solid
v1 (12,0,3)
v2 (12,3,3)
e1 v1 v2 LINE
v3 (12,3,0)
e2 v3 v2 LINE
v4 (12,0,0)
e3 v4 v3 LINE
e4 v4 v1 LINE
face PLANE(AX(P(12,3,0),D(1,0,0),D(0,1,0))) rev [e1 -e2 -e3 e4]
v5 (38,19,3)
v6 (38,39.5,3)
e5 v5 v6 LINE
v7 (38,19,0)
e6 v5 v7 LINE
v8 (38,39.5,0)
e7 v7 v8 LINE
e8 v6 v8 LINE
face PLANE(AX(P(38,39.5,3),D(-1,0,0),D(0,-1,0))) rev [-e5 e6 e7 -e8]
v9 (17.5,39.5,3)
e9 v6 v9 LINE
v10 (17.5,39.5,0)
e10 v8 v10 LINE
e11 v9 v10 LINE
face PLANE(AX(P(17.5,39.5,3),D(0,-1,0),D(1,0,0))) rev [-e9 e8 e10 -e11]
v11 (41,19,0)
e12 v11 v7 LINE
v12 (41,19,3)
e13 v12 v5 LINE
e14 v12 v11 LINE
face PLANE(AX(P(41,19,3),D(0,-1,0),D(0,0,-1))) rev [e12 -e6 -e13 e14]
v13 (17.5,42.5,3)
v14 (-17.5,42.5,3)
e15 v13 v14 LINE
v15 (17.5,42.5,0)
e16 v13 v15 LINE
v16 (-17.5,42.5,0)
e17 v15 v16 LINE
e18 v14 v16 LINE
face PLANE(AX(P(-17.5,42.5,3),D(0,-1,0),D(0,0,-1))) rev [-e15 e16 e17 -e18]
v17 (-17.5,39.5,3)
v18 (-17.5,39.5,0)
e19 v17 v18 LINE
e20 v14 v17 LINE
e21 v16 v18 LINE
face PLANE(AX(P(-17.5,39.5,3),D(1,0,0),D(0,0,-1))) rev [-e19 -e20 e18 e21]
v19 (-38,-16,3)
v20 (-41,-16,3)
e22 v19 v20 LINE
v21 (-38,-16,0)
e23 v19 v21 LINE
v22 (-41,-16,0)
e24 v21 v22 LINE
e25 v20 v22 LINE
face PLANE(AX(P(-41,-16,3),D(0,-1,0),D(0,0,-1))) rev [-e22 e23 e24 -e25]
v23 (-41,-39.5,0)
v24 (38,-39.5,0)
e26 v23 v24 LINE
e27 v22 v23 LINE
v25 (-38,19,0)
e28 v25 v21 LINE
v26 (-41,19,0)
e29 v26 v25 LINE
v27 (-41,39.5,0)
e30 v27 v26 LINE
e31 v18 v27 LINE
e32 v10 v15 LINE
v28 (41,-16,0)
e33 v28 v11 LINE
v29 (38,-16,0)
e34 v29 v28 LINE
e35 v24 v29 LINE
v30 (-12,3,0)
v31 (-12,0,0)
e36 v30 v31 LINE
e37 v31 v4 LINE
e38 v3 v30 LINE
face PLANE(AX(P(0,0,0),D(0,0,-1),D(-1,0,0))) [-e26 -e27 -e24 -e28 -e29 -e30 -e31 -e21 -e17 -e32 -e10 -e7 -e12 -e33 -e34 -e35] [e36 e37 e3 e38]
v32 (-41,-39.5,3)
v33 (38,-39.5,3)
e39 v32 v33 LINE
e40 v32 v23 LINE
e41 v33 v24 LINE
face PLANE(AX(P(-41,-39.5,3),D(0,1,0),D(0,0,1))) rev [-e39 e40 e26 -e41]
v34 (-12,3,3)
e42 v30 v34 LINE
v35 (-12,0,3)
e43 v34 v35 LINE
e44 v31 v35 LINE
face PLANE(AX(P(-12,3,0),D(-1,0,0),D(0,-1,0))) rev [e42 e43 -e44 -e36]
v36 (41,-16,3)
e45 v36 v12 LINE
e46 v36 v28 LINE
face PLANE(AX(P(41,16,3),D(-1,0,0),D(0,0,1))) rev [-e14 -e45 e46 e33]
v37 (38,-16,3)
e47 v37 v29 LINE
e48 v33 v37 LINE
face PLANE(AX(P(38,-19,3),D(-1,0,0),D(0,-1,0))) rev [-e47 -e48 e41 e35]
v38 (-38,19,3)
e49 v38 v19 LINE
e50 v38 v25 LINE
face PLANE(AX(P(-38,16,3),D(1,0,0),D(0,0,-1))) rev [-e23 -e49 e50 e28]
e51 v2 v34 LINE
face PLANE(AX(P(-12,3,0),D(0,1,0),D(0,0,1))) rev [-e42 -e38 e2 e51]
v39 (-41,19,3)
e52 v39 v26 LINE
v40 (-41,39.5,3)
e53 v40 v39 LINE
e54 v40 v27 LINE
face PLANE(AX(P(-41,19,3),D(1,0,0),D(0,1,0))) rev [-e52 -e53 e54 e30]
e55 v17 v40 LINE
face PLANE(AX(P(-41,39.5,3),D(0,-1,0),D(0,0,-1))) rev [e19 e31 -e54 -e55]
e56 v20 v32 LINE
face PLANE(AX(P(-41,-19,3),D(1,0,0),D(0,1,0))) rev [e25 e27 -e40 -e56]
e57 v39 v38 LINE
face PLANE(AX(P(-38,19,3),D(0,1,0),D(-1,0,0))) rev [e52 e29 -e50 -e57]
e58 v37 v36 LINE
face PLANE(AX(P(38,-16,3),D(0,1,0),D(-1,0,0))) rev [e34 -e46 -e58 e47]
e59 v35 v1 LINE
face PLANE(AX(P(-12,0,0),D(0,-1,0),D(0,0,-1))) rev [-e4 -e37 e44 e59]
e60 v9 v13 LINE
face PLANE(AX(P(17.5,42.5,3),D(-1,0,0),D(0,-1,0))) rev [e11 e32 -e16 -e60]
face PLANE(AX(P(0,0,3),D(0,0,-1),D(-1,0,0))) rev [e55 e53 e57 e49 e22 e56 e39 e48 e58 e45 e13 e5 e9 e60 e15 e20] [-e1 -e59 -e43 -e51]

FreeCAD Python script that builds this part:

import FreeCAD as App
import Part
import Sketcher

doc = App.newDocument("Part")
body = doc.addObject("PartDesign::Body", "Body")

# Sketch on XY plane
sketch1 = body.newObject("Sketcher::SketchObject", "Sketch")
sketch1.AttachmentSupport = (doc.getObject("XY_Plane"), [""])
sketch1.MapMode = "FlatFace"
sketch1.addGeometry(Part.LineSegment(App.Vector(-17.5, 39.5, 0), App.Vector(-41, 39.5, 0)), False)
sketch1.addGeometry(Part.LineSegment(App.Vector(-41, 39.5, 0), App.Vector(-41, 19, 0)), False)
sketch1.addGeometry(Part.LineSegment(App.Vector(-41, 19, 0), App.Vector(-38, 19, 0)), False)
sketch1.addGeometry(Part.LineSegment(App.Vector(-38, 19, 0), App.Vector(-38, -16, 0)), False)
sketch1.addGeometry(Part.LineSegment(App.Vector(-38, -16, 0), App.Vector(-41, -16, 0)), False)
sketch1.addGeometry(Part.LineSegment(App.Vector(-41, -16, 0), App.Vector(-41, -39.5, 0)), False)
sketch1.addGeometry(Part.LineSegment(App.Vector(-41, -39.5, 0), App.Vector(38, -39.5, 0)), False)
sketch1.addGeometry(Part.LineSegment(App.Vector(38, -39.5, 0), App.Vector(38, -16, 0)), False)
sketch1.addGeometry(Part.LineSegment(App.Vector(38, -16, 0), App.Vector(41, -16, 0)), False)
sketch1.addGeometry(Part.LineSegment(App.Vector(41, -16, 0), App.Vector(41, 19, 0)), False)
sketch1.addGeometry(Part.LineSegment(App.Vector(41, 19, 0), App.Vector(38, 19, 0)), False)
sketch1.addGeometry(Part.LineSegment(App.Vector(38, 19, 0), App.Vector(38, 39.5, 0)), False)
sketch1.addGeometry(Part.LineSegment(App.Vector(38, 39.5, 0), App.Vector(17.5, 39.5, 0)), False)
sketch1.addGeometry(Part.LineSegment(App.Vector(17.5, 39.5, 0), App.Vector(17.5, 42.5, 0)), False)
sketch1.addGeometry(Part.LineSegment(App.Vector(17.5, 42.5, 0), App.Vector(-17.5, 42.5, 0)), False)
sketch1.addGeometry(Part.LineSegment(App.Vector(-17.5, 42.5, 0), App.Vector(-17.5, 39.5, 0)), False)
sketch1.addConstraint(Sketcher.Constraint("Coincident", 0, 2, 1, 1))
sketch1.addConstraint(Sketcher.Constraint("Coincident", 1, 2, 2, 1))
sketch1.addConstraint(Sketcher.Constraint("Coincident", 2, 2, 3, 1))
sketch1.addConstraint(Sketcher.Constraint("Coincident", 3, 2, 4, 1))
sketch1.addConstraint(Sketcher.Constraint("Coincident", 4, 2, 5, 1))
sketch1.addConstraint(Sketcher.Constraint("Coincident", 5, 2, 6, 1))
sketch1.addConstraint(Sketcher.Constraint("Coincident", 6, 2, 7, 1))
sketch1.addConstraint(Sketcher.Constraint("Coincident", 7, 2, 8, 1))
sketch1.addConstraint(Sketcher.Constraint("Coincident", 8, 2, 9, 1))
sketch1.addConstraint(Sketcher.Constraint("Coincident", 9, 2, 10, 1))
sketch1.addConstraint(Sketcher.Constraint("Coincident", 10, 2, 11, 1))
sketch1.addConstraint(Sketcher.Constraint("Coincident", 11, 2, 12, 1))
sketch1.addConstraint(Sketcher.Constraint("Coincident", 12, 2, 13, 1))
sketch1.addConstraint(Sketcher.Constraint("Coincident", 13, 2, 14, 1))
sketch1.addConstraint(Sketcher.Constraint("Coincident", 14, 2, 15, 1))
sketch1.addConstraint(Sketcher.Constraint("Coincident", 15, 2, 0, 1))
sketch1.addConstraint(Sketcher.Constraint("Horizontal", 0))
sketch1.addConstraint(Sketcher.Constraint("Vertical", 1))
sketch1.addConstraint(Sketcher.Constraint("Horizontal", 2))
sketch1.addConstraint(Sketcher.Constraint("Vertical", 3))
sketch1.addConstraint(Sketcher.Constraint("Horizontal", 4))
sketch1.addConstraint(Sketcher.Constraint("Vertical", 5))
sketch1.addConstraint(Sketcher.Constraint("Horizontal", 6))
sketch1.addConstraint(Sketcher.Constraint("Vertical", 7))
sketch1.addConstraint(Sketcher.Constraint("Horizontal", 8))
sketch1.addConstraint(Sketcher.Constraint("Vertical", 9))
sketch1.addConstraint(Sketcher.Constraint("Horizontal", 10))
sketch1.addConstraint(Sketcher.Constraint("Vertical", 11))
sketch1.addConstraint(Sketcher.Constraint("Horizontal", 12))
sketch1.addConstraint(Sketcher.Constraint("Vertical", 13))
sketch1.addConstraint(Sketcher.Constraint("Horizontal", 14))
sketch1.addConstraint(Sketcher.Constraint("Vertical", 15))
sketch1.addConstraint(Sketcher.Constraint("Symmetric", 3, 2, 7, 2, -2))
sketch1.addConstraint(Sketcher.Constraint("Symmetric", 1, 2, 9, 2, -2))
sketch1.addConstraint(Sketcher.Constraint("Symmetric", 12, 2, 15, 2, -2))
sketch1.addConstraint(Sketcher.Constraint("Symmetric", 0, 2, 5, 2, -1))
sketch1.addConstraint(Sketcher.Constraint("Vertical", 7, 2, 10, 2))
sketch1.addConstraint(Sketcher.Constraint("Equal", 12, 1))
sketch1.addConstraint(Sketcher.Constraint("Equal", 14, 3))
sketch1.addConstraint(Sketcher.Constraint("Equal", 0, 5))
sketch1.addConstraint(Sketcher.Constraint("Equal", 10, 13))
sketch1.addConstraint(Sketcher.Constraint("DistanceX", 2, 1, 2, 2, 3.0))
sketch1.addConstraint(Sketcher.Constraint("DistanceX", 6, 1, 6, 2, 79.0))
sketch1.addConstraint(Sketcher.Constraint("DistanceX", 14, 2, 14, 1, 35.0))
pad1 = body.newObject("PartDesign::Pad", "Pad")
pad1.Profile = sketch1
pad1.Length = 3

# Sketch on XY plane
sketch2 = body.newObject("Sketcher::SketchObject", "Sketch001")
sketch2.AttachmentSupport = (doc.getObject("XY_Plane"), [""])
sketch2.MapMode = "FlatFace"
sketch2.AttachmentOffset = App.Placement(App.Vector(0, 0, 3), App.Rotation())
sketch2.addGeometry(Part.LineSegment(App.Vector(-12, 3, 0), App.Vector(-12, 0, 0)), False)
sketch2.addGeometry(Part.LineSegment(App.Vector(-12, 0, 0), App.Vector(12, 0, 0)), False)
sketch2.addGeometry(Part.LineSegment(App.Vector(12, 0, 0), App.Vector(12, 3, 0)), False)
sketch2.addGeometry(Part.LineSegment(App.Vector(12, 3, 0), App.Vector(-12, 3, 0)), False)
sketch2.addConstraint(Sketcher.Constraint("Coincident", 0, 2, 1, 1))
sketch2.addConstraint(Sketcher.Constraint("Coincident", 1, 2, 2, 1))
sketch2.addConstraint(Sketcher.Constraint("Coincident", 2, 2, 3, 1))
sketch2.addConstraint(Sketcher.Constraint("Coincident", 3, 2, 0, 1))
sketch2.addConstraint(Sketcher.Constraint("Vertical", 0))
sketch2.addConstraint(Sketcher.Constraint("Horizontal", 1))
sketch2.addConstraint(Sketcher.Constraint("Vertical", 2))
sketch2.addConstraint(Sketcher.Constraint("Horizontal", 3))
sketch2.addConstraint(Sketcher.Constraint("Symmetric", 0, 2, 1, 2, -1, 1))
sketch2.addConstraint(Sketcher.Constraint("DistanceX", 1, 1, 1, 2, 24.0))
sketch2.addConstraint(Sketcher.Constraint("DistanceY", 0, 2, 0, 1, 3.0))
pocket1 = body.newObject("PartDesign::Pocket", "Pocket")
pocket1.Profile = sketch2
pocket1.Length = 3

doc.recompute()
